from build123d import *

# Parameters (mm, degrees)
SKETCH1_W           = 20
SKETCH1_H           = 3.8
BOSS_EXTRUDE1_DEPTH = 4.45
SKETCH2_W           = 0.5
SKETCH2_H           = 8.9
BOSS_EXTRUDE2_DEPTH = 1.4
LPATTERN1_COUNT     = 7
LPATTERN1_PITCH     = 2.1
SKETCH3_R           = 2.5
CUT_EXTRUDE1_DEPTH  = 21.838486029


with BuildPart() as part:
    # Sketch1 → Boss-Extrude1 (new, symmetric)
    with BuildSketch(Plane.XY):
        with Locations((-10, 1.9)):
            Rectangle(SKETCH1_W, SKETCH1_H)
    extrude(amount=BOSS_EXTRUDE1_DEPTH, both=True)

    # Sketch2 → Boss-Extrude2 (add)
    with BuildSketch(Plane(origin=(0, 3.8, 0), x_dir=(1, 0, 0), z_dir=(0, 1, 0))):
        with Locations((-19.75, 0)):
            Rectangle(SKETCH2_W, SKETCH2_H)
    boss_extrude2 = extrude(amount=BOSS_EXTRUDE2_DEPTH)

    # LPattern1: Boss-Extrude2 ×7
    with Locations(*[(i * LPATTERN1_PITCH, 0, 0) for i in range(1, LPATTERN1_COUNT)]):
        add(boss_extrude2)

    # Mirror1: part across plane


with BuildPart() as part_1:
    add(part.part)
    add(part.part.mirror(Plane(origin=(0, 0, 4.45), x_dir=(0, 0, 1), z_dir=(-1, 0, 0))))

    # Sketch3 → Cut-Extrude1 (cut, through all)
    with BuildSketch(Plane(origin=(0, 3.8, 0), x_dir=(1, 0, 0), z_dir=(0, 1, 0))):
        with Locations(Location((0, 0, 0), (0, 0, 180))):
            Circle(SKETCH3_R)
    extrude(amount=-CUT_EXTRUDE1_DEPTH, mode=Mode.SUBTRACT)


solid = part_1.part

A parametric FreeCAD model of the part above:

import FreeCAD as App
import Part
import Sketcher
from FreeCAD import Vector

doc = App.newDocument("Part")
body = doc.addObject("PartDesign::Body", "Body")

# Sketch on XY plane
sketch1 = body.newObject("Sketcher::SketchObject", "Sketch")
sketch1.AttachmentSupport = (doc.getObject("XY_Plane"), [""])
sketch1.MapMode = "FlatFace"
sketch1.addGeometry(Part.LineSegment(Vector(-20, 3.8, 0), Vector(-20, 0, 0)), False)
sketch1.addGeometry(Part.LineSegment(Vector(-20, 0, 0), Vector(0, 0, 0)), False)
sketch1.addGeometry(Part.LineSegment(Vector(0, 0, 0), Vector(0, 3.8, 0)), False)
sketch1.addGeometry(Part.LineSegment(Vector(0, 3.8, 0), Vector(-20, 3.8, 0)), False)
sketch1.addConstraint(Sketcher.Constraint("Coincident", 0, 2, 1, 1))
sketch1.addConstraint(Sketcher.Constraint("Coincident", 1, 2, 2, 1))
sketch1.addConstraint(Sketcher.Constraint("Coincident", 2, 2, 3, 1))
sketch1.addConstraint(Sketcher.Constraint("Coincident", 3, 2, 0, 1))
sketch1.addConstraint(Sketcher.Constraint("Vertical", 0))
sketch1.addConstraint(Sketcher.Constraint("Horizontal", 1))
sketch1.addConstraint(Sketcher.Constraint("Vertical", 2))
sketch1.addConstraint(Sketcher.Constraint("Horizontal", 3))
sketch1.addConstraint(Sketcher.Constraint("Coincident", 1, 2, -1, 1))
sketch1.addConstraint(Sketcher.Constraint("DistanceX", 1, 1, 1, 2, 20.0))
sketch1.addConstraint(Sketcher.Constraint("DistanceY", 0, 2, 0, 1, 3.8))
pad1 = body.newObject("PartDesign::Pad", "Pad")
pad1.Profile = sketch1
pad1.Length = 8.9
pad1.Midplane = True

# Sketch on XZ plane
sketch2 = body.newObject("Sketcher::SketchObject", "Sketch001")
sketch2.AttachmentSupport = (doc.getObject("XZ_Plane"), [""])
sketch2.MapMode = "FlatFace"
sketch2.AttachmentOffset = App.Placement(Vector(0, 0, -3.8), App.Rotation())
sketch2.addGeometry(Part.LineSegment(Vector(-20, -4.5, 0), Vector(-20, 4.5, 0)), False)
sketch2.addGeometry(Part.LineSegment(Vector(-20, 4.5, 0), Vector(-19.5, 4.5, 0)), False)
sketch2.addGeometry(Part.LineSegment(Vector(-19.5, 4.5, 0), Vector(-19.5, -4.5, 0)), False)
sketch2.addGeometry(Part.LineSegment(Vector(-19.5, -4.5, 0), Vector(-20, -4.5, 0)), False)
sketch2.addConstraint(Sketcher.Constraint("Coincident", 0, 2, 1, 1))
sketch2.addConstraint(Sketcher.Constraint("Coincident", 1, 2, 2, 1))
sketch2.addConstraint(Sketcher.Constraint("Coincident", 2, 2, 3, 1))
sketch2.addConstraint(Sketcher.Constraint("Coincident", 3, 2, 0, 1))
sketch2.addConstraint(Sketcher.Constraint("Vertical", 0))
sketch2.addConstraint(Sketcher.Constraint("Horizontal", 1))
sketch2.addConstraint(Sketcher.Constraint("Vertical", 2))
sketch2.addConstraint(Sketcher.Constraint("Horizontal", 3))
sketch2.addConstraint(Sketcher.Constraint("DistanceX", 1, 1, 1, 2, 0.5))
sketch2.addConstraint(Sketcher.Constraint("DistanceY", 0, 1, 0, 2, 8.9))
sketch2.addConstraint(Sketcher.Constraint("DistanceX", 0, 2, -1, 1, 20.0))
sketch2.addConstraint(Sketcher.Constraint("DistanceY", -1, 1, 0, 2, 4.45))
pad2 = body.newObject("PartDesign::Pad", "Pad001")
pad2.Profile = sketch2
pad2.Length = 1.4
pad2.Reversed = True
doc.recompute()

linearpattern = body.newObject("PartDesign::LinearPattern", "LinearPattern")
linearpattern.Originals = [pad2]
linearpattern.Direction = (doc.getObject("X_Axis"), [""])
linearpattern.Mode = "offset"
linearpattern.Offset = 2.1
linearpattern.Occurrences = 7
body.Tip = linearpattern
body2 = doc.addObject("PartDesign::Body", "Body001")
doc.recompute()

body2.BaseFeature = body
doc.recompute()

mirroring = doc.addObject("Part::Mirroring", "Mirroring")
mirroring.Source = body
mirroring.Base = Vector(0, 0, 4.45)
mirroring.Normal = Vector(-1, 0, 0)
body3 = doc.addObject("PartDesign::Body", "Body002")
body3.BaseFeature = mirroring
boolean = body2.newObject("PartDesign::Boolean", "Boolean")
boolean.Type = "Fuse"
boolean.addObjects([body3])
doc.recompute()

# Sketch on XZ plane
sketch3 = body2.newObject("Sketcher::SketchObject", "Sketch002")
sketch3.AttachmentSupport = (doc.getObject("XZ_Plane001"), [""])
sketch3.MapMode = "FlatFace"
sketch3.AttachmentOffset = App.Placement(Vector(0, 0, -3.8), App.Rotation())
sketch3.addGeometry(Part.Circle(Vector(0, 0, 0), Vector(0, 0, 1), 2.5), False)
sketch3.addConstraint(Sketcher.Constraint("Coincident", 0, 3, -1, 1))
sketch3.addConstraint(Sketcher.Constraint("Diameter", 0, 5.0))
pocket1 = body2.newObject("PartDesign::Pocket", "Pocket")
pocket1.Profile = sketch3
pocket1.Type = "ThroughAll"
pocket1.Reversed = True
mirroring.Visibility = False

doc.recompute()
